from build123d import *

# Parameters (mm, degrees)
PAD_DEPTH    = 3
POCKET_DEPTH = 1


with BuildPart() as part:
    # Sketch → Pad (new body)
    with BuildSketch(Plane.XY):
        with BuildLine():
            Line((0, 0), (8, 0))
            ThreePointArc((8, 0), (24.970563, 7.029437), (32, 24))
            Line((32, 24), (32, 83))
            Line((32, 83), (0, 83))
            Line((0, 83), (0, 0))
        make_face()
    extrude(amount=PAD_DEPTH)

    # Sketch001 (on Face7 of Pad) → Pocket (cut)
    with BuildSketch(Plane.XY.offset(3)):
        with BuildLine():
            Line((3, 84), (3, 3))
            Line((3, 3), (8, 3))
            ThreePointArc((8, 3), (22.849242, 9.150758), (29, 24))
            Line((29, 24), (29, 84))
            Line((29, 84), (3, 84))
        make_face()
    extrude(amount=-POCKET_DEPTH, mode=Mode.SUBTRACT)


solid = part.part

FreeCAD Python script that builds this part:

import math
import FreeCAD as App
import Part
import Sketcher
from FreeCAD import Vector
Q = App.Units.Quantity

doc = App.newDocument("Part")
body = doc.addObject("PartDesign::Body", "Body")

# Sketch on XY plane
sketch1 = body.newObject("Sketcher::SketchObject", "Sketch")
sketch1.AttachmentSupport = (doc.getObject("XY_Plane"), [""])
sketch1.MapMode = "FlatFace"
sketch1.addGeometry(Part.LineSegment(Vector(0, 0, 0), Vector(8, 0, 0)), False)
sketch1.addGeometry(Part.ArcOfCircle(Part.Circle(Vector(8, 24, 0), Vector(0, 0, 1), 24), math.radians(-90), math.radians(0)), False)
sketch1.addGeometry(Part.LineSegment(Vector(32, 24, 0), Vector(32, 83, 0)), False)
sketch1.addGeometry(Part.LineSegment(Vector(32, 83, 0), Vector(0, 83, 0)), False)
sketch1.addGeometry(Part.LineSegment(Vector(0, 83, 0), Vector(0, 0, 0)), False)
sketch1.addConstraint(Sketcher.Constraint("Tangent", 0, 2, 1, 1))
sketch1.addConstraint(Sketcher.Constraint("Tangent", 1, 2, 2, 1))
sketch1.addConstraint(Sketcher.Constraint("Coincident", 2, 2, 3, 1))
sketch1.addConstraint(Sketcher.Constraint("Coincident", 3, 2, 4, 1))
sketch1.addConstraint(Sketcher.Constraint("Coincident", 4, 2, 0, 1))
sketch1.addConstraint(Sketcher.Constraint("Horizontal", 0))
sketch1.addConstraint(Sketcher.Constraint("Vertical", 2))
sketch1.addConstraint(Sketcher.Constraint("Horizontal", 3))
sketch1.addConstraint(Sketcher.Constraint("Vertical", 4))
sketch1.addConstraint(Sketcher.Constraint("Coincident", 4, 2, -1, 1))
sketch1.addConstraint(Sketcher.Constraint("Radius", 1, Q("23.999999 mm")))
sketch1.addConstraint(Sketcher.Constraint("DistanceX", 0, 1, 0, 2, Q("8 mm")))
sketch1.addConstraint(Sketcher.Constraint("DistanceY", 2, 1, 2, 2, Q("59 mm")))
pad1 = body.newObject("PartDesign::Pad", "Pad")
pad1.Profile = sketch1
pad1.Length = 3

# Sketch on XY plane
sketch2 = body.newObject("Sketcher::SketchObject", "Sketch001")
sketch2.AttachmentSupport = (doc.getObject("XY_Plane"), [""])
sketch2.MapMode = "FlatFace"
sketch2.AttachmentOffset = App.Placement(Vector(0, 0, 3), App.Rotation())
sketch2.addGeometry(Part.LineSegment(Vector(3, 84, 0), Vector(3, 3, 0)), False)
sketch2.addGeometry(Part.LineSegment(Vector(3, 3, 0), Vector(8, 3, 0)), False)
sketch2.addGeometry(Part.ArcOfCircle(Part.Circle(Vector(8, 24, 0), Vector(0, 0, 1), 21), math.radians(-90), math.radians(0)), False)
sketch2.addGeometry(Part.LineSegment(Vector(29, 24, 0), Vector(29, 84, 0)), False)
sketch2.addGeometry(Part.LineSegment(Vector(29, 84, 0), Vector(3, 84, 0)), False)
sketch2.addConstraint(Sketcher.Constraint("Coincident", 0, 2, 1, 1))
sketch2.addConstraint(Sketcher.Constraint("Tangent", 1, 2, 2, 1))
sketch2.addConstraint(Sketcher.Constraint("Tangent", 2, 2, 3, 1))
sketch2.addConstraint(Sketcher.Constraint("Coincident", 3, 2, 4, 1))
sketch2.addConstraint(Sketcher.Constraint("Coincident", 4, 2, 0, 1))
sketch2.addConstraint(Sketcher.Constraint("Vertical", 0))
sketch2.addConstraint(Sketcher.Constraint("Horizontal", 1))
sketch2.addConstraint(Sketcher.Constraint("Vertical", 3))
sketch2.addConstraint(Sketcher.Constraint("Horizontal", 4))
sketch2.addConstraint(Sketcher.Constraint("Radius", 2, Q("21.000001 mm")))
sketch2.addConstraint(Sketcher.Constraint("DistanceX", 1, 1, 1, 2, Q("5 mm")))
sketch2.addConstraint(Sketcher.Constraint("DistanceY", 0, 2, 0, 1, Q("81 mm")))
sketch2.addConstraint(Sketcher.Constraint("DistanceX", -1, 1, 2, 3, Q("7.999999 mm")))
sketch2.addConstraint(Sketcher.Constraint("DistanceY", -1, 1, 2, 3, Q("24.000001 mm")))
pocket1 = body.newObject("PartDesign::Pocket", "Pocket")
pocket1.Profile = sketch2
pocket1.Length = 1

doc.recompute()
